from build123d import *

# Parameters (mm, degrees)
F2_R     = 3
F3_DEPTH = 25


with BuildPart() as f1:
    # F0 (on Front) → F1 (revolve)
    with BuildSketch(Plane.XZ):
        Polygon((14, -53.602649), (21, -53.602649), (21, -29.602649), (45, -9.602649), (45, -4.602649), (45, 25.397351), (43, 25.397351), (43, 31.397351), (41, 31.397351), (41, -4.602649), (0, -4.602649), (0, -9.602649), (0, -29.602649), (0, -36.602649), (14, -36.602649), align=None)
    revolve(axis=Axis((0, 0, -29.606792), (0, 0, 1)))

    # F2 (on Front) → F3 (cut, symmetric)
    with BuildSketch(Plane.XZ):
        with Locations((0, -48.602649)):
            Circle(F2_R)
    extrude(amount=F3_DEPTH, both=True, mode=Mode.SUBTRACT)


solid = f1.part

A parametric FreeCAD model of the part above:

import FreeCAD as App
import Part
import Sketcher

doc = App.newDocument("Part")
body = doc.addObject("PartDesign::Body", "Body")

sketch1 = body.newObject("Sketcher::SketchObject", "Sketch")
sketch1.AttachmentSupport = (doc.getObject("XZ_Plane"), [""])
sketch1.MapMode = "FlatFace"
sketch1.addGeometry(Part.LineSegment(App.Vector(14, -53.6, 0), App.Vector(21, -53.6, 0)), False)
sketch1.addGeometry(Part.LineSegment(App.Vector(21, -53.6, 0), App.Vector(21, -29.6, 0)), False)
sketch1.addGeometry(Part.LineSegment(App.Vector(21, -29.6, 0), App.Vector(45, -9.6, 0)), False)
sketch1.addGeometry(Part.LineSegment(App.Vector(45, -9.6, 0), App.Vector(45, 25.4, 0)), False)
sketch1.addGeometry(Part.LineSegment(App.Vector(45, 25.4, 0), App.Vector(43, 25.4, 0)), False)
sketch1.addGeometry(Part.LineSegment(App.Vector(43, 25.4, 0), App.Vector(43, 31.4, 0)), False)
sketch1.addGeometry(Part.LineSegment(App.Vector(43, 31.4, 0), App.Vector(41, 31.4, 0)), False)
sketch1.addGeometry(Part.LineSegment(App.Vector(41, 31.4, 0), App.Vector(41, -4.6, 0)), False)
sketch1.addGeometry(Part.LineSegment(App.Vector(41, -4.6, 0), App.Vector(0, -4.6, 0)), False)
sketch1.addGeometry(Part.LineSegment(App.Vector(0, -4.6, 0), App.Vector(0, -36.6, 0)), False)
sketch1.addGeometry(Part.LineSegment(App.Vector(0, -36.6, 0), App.Vector(14, -36.6, 0)), False)
sketch1.addGeometry(Part.LineSegment(App.Vector(14, -36.6, 0), App.Vector(14, -53.6, 0)), False)
sketch1.addConstraint(Sketcher.Constraint("Coincident", 0, 2, 1, 1))
sketch1.addConstraint(Sketcher.Constraint("Coincident", 1, 2, 2, 1))
sketch1.addConstraint(Sketcher.Constraint("Coincident", 2, 2, 3, 1))
sketch1.addConstraint(Sketcher.Constraint("Coincident", 3, 2, 4, 1))
sketch1.addConstraint(Sketcher.Constraint("Coincident", 4, 2, 5, 1))
sketch1.addConstraint(Sketcher.Constraint("Coincident", 5, 2, 6, 1))
sketch1.addConstraint(Sketcher.Constraint("Coincident", 6, 2, 7, 1))
sketch1.addConstraint(Sketcher.Constraint("Coincident", 7, 2, 8, 1))
sketch1.addConstraint(Sketcher.Constraint("Coincident", 8, 2, 9, 1))
sketch1.addConstraint(Sketcher.Constraint("Coincident", 9, 2, 10, 1))
sketch1.addConstraint(Sketcher.Constraint("Coincident", 10, 2, 11, 1))
sketch1.addConstraint(Sketcher.Constraint("Coincident", 11, 2, 0, 1))
sketch1.addConstraint(Sketcher.Constraint("Horizontal", 0))
sketch1.addConstraint(Sketcher.Constraint("Vertical", 1))
sketch1.addConstraint(Sketcher.Constraint("Vertical", 3))
sketch1.addConstraint(Sketcher.Constraint("Horizontal", 4))
sketch1.addConstraint(Sketcher.Constraint("Vertical", 5))
sketch1.addConstraint(Sketcher.Constraint("Horizontal", 6))
sketch1.addConstraint(Sketcher.Constraint("Vertical", 7))
sketch1.addConstraint(Sketcher.Constraint("Horizontal", 8))
sketch1.addConstraint(Sketcher.Constraint("Vertical", 9))
sketch1.addConstraint(Sketcher.Constraint("Horizontal", 10))
sketch1.addConstraint(Sketcher.Constraint("Vertical", 11))
sketch1.addConstraint(Sketcher.Constraint("PointOnObject", 8, 2, -2))
sketch1.addConstraint(Sketcher.Constraint("Equal", 4, 6))
sketch1.addConstraint(Sketcher.Constraint("DistanceX", 0, 1, 0, 2, 7.0))
sketch1.addConstraint(Sketcher.Constraint("DistanceX", 4, 2, 4, 1, 2.0))
sketch1.addConstraint(Sketcher.Constraint("DistanceX", 8, 2, 8, 1, 41.0))
sketch1.addConstraint(Sketcher.Constraint("DistanceX", 10, 1, 10, 2, 14.0))
sketch1.addConstraint(Sketcher.Constraint("DistanceY", 1, 1, 1, 2, 24.0))
sketch1.addConstraint(Sketcher.Constraint("DistanceY", 3, 1, 3, 2, 35.0))
sketch1.addConstraint(Sketcher.Constraint("DistanceY", 5, 1, 5, 2, 6.0))
sketch1.addConstraint(Sketcher.Constraint("DistanceY", 7, 2, 7, 1, 36.0))
sketch1.addConstraint(Sketcher.Constraint("DistanceY", 9, 2, 9, 1, 32.0))
sketch1.addConstraint(Sketcher.Constraint("DistanceY", 11, 2, 11, 1, 17.0))
sketch1.addConstraint(Sketcher.Constraint("DistanceY", 0, 2, -1, 1, 53.602649))
revolution = body.newObject("PartDesign::Revolution", "Revolution")
revolution.Profile = sketch1
revolution.ReferenceAxis = (sketch1, ["V_Axis"])
revolution.Angle = 360

sketch2 = body.newObject("Sketcher::SketchObject", "Sketch001")
sketch2.AttachmentSupport = (doc.getObject("XZ_Plane"), [""])
sketch2.MapMode = "FlatFace"
sketch2.addGeometry(Part.Circle(App.Vector(0, -48.6, 0), App.Vector(0, 0, 1), 3), False)
sketch2.addConstraint(Sketcher.Constraint("PointOnObject", 0, 3, -2))
sketch2.addConstraint(Sketcher.Constraint("Diameter", 0, 6.0))
sketch2.addConstraint(Sketcher.Constraint("DistanceY", 0, 3, -1, 1, 48.602649))
pocket1 = body.newObject("PartDesign::Pocket", "Pocket")
pocket1.Profile = sketch2
pocket1.Length = 50
pocket1.Midplane = True

doc.recompute()
